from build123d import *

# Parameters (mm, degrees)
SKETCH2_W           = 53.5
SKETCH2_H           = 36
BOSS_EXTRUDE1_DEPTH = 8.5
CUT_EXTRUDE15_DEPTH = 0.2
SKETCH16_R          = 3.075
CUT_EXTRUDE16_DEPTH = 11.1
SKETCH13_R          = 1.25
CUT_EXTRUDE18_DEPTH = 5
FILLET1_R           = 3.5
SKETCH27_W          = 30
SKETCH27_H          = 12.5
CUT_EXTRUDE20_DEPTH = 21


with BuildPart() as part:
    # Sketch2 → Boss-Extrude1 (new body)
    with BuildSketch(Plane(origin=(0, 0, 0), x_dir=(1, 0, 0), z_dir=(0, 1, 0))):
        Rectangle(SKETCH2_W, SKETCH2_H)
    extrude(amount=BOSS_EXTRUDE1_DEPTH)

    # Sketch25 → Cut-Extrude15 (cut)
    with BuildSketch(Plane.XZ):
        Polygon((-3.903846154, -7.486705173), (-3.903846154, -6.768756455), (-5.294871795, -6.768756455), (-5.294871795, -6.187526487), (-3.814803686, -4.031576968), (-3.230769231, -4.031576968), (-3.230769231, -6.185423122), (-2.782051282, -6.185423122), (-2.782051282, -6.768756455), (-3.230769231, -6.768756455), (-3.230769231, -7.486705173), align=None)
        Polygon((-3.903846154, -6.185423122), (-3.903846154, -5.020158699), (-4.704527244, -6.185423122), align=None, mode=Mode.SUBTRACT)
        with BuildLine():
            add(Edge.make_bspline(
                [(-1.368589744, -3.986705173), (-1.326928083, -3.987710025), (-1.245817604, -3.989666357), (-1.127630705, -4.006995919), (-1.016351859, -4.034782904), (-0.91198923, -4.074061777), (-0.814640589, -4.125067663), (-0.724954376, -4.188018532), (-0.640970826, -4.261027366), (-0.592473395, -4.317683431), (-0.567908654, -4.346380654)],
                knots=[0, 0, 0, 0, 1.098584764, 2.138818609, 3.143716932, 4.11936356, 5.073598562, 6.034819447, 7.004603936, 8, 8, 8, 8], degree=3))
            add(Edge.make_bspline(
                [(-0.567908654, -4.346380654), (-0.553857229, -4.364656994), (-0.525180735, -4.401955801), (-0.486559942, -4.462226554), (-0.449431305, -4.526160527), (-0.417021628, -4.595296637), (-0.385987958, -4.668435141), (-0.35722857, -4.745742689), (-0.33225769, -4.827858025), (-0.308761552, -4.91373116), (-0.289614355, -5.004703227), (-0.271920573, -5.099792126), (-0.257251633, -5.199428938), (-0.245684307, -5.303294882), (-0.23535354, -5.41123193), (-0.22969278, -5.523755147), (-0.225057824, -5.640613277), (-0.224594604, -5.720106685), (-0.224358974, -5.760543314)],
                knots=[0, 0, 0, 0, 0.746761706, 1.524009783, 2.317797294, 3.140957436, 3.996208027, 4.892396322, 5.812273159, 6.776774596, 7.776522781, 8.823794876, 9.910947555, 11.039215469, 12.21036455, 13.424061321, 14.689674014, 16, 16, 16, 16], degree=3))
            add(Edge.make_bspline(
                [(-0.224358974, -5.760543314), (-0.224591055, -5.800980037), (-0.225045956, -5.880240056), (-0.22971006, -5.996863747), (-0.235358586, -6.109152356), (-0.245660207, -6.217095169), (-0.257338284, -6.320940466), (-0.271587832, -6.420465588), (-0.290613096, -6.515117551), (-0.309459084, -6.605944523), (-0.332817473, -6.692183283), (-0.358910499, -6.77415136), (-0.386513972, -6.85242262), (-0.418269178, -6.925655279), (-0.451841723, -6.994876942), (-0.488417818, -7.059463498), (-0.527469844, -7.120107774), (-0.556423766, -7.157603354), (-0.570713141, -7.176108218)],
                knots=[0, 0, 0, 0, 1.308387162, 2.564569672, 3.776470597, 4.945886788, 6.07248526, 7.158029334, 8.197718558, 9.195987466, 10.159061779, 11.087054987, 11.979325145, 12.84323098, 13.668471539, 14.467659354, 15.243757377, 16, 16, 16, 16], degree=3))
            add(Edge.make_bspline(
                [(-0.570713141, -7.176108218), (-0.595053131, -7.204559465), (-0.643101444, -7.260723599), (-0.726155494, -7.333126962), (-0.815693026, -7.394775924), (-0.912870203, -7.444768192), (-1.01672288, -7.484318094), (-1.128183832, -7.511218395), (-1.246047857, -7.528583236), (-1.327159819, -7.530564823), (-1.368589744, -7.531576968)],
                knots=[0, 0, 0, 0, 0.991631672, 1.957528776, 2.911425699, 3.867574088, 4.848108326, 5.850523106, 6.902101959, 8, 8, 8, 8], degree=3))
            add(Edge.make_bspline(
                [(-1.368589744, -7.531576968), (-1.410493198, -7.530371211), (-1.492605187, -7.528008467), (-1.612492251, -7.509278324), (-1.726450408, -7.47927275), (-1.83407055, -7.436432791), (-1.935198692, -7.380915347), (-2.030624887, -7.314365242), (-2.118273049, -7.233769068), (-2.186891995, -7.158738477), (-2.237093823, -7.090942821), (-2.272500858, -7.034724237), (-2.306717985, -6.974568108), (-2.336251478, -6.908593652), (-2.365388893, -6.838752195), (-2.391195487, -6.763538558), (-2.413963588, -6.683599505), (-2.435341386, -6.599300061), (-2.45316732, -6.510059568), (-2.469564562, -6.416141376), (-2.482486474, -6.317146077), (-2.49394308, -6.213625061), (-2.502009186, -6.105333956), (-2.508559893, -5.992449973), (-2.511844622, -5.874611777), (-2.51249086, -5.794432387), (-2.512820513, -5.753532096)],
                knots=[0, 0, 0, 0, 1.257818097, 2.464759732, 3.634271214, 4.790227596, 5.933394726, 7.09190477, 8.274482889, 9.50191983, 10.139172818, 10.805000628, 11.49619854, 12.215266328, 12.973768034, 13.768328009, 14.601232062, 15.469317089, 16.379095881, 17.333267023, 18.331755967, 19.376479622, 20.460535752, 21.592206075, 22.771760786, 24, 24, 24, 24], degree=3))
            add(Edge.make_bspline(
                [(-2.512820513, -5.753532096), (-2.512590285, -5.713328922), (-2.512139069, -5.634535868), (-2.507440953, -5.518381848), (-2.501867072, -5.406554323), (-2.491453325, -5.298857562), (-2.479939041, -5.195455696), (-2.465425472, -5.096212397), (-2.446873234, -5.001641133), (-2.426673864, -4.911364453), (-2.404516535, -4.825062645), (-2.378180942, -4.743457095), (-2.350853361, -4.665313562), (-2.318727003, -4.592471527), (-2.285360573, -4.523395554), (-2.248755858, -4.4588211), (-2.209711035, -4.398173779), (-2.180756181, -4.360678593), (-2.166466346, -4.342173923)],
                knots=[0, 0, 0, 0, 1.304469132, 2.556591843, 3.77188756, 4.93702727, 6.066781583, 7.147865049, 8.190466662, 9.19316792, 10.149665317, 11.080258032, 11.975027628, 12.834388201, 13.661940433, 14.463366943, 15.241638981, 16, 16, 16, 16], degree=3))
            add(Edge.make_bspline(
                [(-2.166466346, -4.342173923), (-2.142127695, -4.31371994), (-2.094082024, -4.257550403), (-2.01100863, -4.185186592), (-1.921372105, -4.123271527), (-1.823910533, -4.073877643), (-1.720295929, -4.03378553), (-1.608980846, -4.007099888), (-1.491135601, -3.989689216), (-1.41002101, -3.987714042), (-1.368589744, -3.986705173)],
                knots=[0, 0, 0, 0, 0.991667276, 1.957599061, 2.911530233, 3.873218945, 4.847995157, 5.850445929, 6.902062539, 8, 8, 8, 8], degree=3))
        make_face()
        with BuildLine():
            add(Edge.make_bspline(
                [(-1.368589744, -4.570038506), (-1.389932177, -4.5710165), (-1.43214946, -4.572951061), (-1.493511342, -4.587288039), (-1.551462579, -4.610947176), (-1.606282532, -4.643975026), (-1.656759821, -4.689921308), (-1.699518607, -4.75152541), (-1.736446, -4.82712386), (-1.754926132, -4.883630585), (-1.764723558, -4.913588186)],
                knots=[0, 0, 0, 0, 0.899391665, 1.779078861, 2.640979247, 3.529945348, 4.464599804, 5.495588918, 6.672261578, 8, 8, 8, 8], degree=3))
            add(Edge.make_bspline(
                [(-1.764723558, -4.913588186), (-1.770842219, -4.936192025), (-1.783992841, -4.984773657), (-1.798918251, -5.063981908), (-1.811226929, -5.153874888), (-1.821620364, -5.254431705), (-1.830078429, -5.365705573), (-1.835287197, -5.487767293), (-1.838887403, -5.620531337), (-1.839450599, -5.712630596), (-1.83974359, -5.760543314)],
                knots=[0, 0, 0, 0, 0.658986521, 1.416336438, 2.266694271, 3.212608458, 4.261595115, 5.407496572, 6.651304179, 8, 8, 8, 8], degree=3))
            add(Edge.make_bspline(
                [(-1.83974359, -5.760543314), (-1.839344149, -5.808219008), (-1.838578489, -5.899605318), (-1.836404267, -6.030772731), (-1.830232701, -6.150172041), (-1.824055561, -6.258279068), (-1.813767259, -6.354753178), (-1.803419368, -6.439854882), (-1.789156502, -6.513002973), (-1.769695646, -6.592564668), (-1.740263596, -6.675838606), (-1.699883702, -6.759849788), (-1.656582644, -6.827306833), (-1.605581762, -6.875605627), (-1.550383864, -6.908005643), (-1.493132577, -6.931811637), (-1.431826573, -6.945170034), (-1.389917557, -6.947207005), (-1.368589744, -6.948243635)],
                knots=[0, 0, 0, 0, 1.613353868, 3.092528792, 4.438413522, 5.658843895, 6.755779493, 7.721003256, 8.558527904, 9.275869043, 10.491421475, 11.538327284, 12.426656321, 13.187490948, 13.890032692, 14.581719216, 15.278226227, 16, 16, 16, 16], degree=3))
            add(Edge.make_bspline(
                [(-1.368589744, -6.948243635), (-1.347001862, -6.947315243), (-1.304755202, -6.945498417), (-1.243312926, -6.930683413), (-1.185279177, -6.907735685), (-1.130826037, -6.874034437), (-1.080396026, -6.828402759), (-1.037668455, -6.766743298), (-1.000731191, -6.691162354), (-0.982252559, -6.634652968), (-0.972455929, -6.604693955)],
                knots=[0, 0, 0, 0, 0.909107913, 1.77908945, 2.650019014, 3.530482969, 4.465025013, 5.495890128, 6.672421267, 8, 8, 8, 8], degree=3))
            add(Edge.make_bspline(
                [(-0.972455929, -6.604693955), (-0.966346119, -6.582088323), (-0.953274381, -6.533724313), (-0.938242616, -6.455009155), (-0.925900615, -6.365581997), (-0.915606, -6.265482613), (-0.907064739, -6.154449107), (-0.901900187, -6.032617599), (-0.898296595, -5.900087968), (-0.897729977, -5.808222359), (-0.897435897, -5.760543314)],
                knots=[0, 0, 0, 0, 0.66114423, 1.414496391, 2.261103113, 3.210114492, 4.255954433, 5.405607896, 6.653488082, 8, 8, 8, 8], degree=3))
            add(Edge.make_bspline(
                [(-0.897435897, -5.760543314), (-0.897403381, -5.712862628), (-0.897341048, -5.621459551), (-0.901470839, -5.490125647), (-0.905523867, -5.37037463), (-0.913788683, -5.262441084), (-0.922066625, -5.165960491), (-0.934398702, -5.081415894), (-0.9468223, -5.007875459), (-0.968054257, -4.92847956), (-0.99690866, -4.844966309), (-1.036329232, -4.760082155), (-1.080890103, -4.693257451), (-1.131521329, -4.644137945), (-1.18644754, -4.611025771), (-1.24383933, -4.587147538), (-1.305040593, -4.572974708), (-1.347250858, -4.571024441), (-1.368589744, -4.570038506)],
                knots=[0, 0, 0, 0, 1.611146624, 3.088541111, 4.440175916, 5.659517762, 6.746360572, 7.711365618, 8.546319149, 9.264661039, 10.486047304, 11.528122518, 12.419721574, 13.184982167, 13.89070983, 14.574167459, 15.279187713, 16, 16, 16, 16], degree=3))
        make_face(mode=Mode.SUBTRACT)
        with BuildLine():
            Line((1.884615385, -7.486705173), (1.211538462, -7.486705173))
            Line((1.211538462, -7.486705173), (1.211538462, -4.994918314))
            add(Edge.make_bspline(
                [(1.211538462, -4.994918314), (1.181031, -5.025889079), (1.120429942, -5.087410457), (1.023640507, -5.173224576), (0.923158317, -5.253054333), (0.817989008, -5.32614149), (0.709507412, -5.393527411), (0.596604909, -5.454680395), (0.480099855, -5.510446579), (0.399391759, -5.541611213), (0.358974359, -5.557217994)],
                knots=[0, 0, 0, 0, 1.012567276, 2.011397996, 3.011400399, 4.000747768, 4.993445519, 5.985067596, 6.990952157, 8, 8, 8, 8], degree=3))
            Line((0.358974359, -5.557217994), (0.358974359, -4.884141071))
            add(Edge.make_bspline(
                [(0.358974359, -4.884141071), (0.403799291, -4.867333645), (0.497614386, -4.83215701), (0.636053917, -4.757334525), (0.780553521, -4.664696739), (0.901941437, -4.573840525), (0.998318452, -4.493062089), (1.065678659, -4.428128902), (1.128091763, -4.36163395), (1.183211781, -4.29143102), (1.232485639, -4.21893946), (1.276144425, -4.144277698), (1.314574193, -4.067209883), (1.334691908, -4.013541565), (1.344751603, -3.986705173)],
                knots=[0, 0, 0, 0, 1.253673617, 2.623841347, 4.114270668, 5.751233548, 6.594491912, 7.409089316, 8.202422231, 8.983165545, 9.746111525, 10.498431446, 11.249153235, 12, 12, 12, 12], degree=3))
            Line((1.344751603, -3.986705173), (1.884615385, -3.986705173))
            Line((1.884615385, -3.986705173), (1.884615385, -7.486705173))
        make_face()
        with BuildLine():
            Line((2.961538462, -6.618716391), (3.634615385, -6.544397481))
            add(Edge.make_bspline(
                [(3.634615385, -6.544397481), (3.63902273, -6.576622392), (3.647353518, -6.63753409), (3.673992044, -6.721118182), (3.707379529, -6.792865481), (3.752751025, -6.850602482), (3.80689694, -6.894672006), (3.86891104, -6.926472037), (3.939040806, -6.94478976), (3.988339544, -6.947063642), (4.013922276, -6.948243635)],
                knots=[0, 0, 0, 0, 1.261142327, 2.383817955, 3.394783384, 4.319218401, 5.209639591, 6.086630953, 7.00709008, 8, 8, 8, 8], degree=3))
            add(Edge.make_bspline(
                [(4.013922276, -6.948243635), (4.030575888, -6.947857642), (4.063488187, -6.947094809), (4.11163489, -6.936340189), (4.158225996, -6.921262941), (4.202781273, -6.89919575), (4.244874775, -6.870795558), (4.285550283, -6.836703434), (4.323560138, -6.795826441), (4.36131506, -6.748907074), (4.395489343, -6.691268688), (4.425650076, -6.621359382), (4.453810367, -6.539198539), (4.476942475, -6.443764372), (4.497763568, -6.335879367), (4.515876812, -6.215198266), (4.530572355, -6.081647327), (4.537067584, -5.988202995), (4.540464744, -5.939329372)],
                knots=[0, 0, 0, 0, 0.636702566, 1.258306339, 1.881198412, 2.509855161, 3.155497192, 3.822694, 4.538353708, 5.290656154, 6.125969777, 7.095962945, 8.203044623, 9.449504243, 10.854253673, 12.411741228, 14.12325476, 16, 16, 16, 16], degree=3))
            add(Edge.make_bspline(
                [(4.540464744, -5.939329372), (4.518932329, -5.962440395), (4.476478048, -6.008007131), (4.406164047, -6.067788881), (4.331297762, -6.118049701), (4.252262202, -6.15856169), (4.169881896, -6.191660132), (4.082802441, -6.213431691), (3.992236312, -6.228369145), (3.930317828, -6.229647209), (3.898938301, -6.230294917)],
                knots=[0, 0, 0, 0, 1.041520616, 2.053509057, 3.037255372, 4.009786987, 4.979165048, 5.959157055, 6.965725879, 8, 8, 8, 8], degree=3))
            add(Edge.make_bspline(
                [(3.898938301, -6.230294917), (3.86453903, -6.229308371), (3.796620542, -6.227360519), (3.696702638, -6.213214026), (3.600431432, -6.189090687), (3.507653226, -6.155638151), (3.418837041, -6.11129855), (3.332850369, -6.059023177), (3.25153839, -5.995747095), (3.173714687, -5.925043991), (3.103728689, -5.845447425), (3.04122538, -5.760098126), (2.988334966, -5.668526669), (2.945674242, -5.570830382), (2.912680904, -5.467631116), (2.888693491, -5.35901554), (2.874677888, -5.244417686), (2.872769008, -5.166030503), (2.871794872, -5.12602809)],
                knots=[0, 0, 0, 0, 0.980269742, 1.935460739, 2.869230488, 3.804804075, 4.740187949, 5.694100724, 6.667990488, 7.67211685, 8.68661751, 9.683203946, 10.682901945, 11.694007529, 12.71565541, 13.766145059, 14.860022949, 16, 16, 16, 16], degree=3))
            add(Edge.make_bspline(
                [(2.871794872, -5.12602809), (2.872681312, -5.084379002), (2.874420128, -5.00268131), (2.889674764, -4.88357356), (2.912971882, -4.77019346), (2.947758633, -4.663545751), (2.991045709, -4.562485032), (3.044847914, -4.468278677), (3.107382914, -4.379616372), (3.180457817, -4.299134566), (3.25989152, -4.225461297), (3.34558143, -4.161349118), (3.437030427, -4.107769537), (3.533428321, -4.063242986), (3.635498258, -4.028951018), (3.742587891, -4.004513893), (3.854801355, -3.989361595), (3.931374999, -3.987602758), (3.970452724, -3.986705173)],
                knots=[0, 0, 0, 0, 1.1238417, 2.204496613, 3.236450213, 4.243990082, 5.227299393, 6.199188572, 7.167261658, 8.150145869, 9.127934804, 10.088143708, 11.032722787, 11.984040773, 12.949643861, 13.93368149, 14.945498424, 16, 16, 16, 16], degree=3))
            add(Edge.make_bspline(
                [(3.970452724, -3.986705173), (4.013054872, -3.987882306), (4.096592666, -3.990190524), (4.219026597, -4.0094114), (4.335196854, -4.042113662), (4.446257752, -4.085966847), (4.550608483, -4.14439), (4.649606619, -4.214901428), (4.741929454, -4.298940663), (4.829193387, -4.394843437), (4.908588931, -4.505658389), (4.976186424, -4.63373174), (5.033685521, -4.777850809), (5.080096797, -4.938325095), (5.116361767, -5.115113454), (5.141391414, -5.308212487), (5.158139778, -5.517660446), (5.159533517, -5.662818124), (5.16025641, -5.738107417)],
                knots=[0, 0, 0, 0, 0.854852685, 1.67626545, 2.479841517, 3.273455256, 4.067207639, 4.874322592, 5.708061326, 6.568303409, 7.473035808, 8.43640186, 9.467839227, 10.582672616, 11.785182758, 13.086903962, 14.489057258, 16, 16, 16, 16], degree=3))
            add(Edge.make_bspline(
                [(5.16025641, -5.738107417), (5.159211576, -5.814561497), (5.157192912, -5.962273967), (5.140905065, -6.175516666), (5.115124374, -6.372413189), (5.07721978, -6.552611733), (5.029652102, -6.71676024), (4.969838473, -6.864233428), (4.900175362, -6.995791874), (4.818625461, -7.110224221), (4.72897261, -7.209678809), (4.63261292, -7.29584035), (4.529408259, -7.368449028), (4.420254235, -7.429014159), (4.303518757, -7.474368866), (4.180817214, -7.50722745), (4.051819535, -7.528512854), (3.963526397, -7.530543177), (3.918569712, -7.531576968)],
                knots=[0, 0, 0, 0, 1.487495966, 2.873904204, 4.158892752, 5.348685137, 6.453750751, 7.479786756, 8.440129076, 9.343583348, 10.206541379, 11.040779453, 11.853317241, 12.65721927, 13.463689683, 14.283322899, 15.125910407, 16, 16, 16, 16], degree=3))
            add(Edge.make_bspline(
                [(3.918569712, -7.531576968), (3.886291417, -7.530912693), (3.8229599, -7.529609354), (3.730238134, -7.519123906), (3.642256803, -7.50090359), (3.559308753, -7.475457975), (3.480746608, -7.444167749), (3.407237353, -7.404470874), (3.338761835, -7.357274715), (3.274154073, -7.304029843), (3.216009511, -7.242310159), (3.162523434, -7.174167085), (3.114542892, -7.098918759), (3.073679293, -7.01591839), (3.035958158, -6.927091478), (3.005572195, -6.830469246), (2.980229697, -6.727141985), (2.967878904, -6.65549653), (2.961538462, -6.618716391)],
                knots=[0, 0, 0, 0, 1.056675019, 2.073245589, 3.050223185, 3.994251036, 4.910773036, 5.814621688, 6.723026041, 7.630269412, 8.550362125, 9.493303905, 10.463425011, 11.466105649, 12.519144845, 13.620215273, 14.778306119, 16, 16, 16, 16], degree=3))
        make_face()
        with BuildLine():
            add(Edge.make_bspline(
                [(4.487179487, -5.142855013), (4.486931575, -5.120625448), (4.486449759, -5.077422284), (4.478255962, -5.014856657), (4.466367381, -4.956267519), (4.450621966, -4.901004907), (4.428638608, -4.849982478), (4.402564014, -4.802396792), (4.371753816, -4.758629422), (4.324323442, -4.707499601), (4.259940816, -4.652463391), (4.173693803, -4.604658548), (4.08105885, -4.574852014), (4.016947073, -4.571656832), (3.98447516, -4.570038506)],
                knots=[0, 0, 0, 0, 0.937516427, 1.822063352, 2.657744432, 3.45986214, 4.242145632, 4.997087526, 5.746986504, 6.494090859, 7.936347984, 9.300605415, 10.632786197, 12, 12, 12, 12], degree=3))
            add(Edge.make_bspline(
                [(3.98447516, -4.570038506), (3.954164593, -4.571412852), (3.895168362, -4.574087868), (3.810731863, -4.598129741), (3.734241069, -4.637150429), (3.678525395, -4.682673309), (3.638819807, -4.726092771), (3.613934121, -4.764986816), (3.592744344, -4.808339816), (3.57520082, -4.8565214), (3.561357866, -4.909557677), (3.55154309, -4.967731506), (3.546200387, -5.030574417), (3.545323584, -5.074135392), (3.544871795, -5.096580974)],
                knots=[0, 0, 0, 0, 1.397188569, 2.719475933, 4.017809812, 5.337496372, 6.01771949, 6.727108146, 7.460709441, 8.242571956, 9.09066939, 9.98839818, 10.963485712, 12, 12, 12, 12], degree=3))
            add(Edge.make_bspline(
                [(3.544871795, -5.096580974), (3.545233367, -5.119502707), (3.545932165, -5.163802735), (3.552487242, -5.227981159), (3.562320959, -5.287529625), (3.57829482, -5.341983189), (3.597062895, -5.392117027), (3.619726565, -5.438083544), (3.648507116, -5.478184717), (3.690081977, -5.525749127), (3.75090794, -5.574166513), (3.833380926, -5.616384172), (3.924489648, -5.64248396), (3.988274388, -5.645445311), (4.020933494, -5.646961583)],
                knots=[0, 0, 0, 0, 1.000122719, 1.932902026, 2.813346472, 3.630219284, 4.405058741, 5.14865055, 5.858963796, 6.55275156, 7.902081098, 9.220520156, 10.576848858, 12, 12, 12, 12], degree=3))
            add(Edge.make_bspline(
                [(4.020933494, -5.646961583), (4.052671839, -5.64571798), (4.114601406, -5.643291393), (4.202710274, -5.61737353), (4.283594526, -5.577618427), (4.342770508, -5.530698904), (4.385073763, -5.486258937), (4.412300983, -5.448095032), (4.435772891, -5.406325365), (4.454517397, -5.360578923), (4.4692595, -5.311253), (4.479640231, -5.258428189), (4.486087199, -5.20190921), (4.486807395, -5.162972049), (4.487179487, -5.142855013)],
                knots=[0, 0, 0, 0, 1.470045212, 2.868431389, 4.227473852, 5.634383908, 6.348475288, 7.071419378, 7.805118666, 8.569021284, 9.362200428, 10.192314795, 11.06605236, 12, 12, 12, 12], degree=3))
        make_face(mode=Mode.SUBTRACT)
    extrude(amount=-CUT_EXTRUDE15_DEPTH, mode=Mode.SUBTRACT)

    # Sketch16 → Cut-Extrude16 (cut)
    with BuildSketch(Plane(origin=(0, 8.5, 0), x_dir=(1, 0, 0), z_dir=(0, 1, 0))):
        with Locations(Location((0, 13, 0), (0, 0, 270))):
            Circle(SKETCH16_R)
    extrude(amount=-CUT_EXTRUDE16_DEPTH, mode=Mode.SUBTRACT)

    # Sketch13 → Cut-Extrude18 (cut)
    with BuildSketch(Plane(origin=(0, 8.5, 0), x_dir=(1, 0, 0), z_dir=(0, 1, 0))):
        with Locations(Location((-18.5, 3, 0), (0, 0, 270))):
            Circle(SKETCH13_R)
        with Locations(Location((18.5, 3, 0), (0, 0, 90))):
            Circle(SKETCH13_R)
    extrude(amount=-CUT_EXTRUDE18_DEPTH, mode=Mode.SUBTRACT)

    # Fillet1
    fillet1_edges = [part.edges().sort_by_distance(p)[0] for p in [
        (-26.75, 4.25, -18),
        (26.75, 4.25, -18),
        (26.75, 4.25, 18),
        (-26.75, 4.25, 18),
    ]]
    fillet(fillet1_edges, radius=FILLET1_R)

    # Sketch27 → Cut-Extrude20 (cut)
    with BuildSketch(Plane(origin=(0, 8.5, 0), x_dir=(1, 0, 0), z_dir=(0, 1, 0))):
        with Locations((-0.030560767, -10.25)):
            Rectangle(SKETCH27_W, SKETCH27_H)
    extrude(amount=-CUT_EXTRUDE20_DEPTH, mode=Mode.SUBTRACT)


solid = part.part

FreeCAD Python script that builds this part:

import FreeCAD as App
import Part
import Sketcher
Q = App.Units.Quantity


def edges_at(feature, points):
    """Names of the edges that pass closest to the given points."""
    edges = feature.Shape.Edges
    near = lambda p: min(range(len(edges)), key=lambda i: edges[i].distToShape(Part.Vertex(*p))[0])
    return sorted({f"Edge{near(p) + 1}" for p in points})


def add_polygon(sketch, points):
    """Adds a closed chain of lines whose ends are joined by coincident constraints."""
    first, n = sketch.GeometryCount, len(points)
    for a, b in zip(points, points[1:] + points[:1]):
        sketch.addGeometry(Part.LineSegment(App.Vector(*a, 0), App.Vector(*b, 0)), False)
    for i in range(n):
        sketch.addConstraint(Sketcher.Constraint("Coincident", first + i, 2, first + (i + 1) % n, 1))

doc = App.newDocument("Part")
body = doc.addObject("PartDesign::Body", "Body")

sketch1 = body.newObject("Sketcher::SketchObject", "Sketch")
sketch1.AttachmentSupport = (doc.getObject("XZ_Plane"), [""])
sketch1.MapMode = "FlatFace"
add_polygon(sketch1, [(-27, -18), (-27, 18), (27, 18), (27, -18)])
sketch1.addConstraint([
    Sketcher.Constraint("Vertical", 0),
    Sketcher.Constraint("Horizontal", 1),
    Sketcher.Constraint("Vertical", 2),
    Sketcher.Constraint("Horizontal", 3),
    Sketcher.Constraint("Symmetric", 0, 2, 2, 2, -1, 1),
    Sketcher.Constraint("DistanceY", 0, 1, 0, 2, Q("36 mm")),
    Sketcher.Constraint("DistanceX", 1, 1, 1, 2, Q("53.5 mm")),
])
pad1 = body.newObject("PartDesign::Pad", "Pad")
pad1.Profile = sketch1
pad1.Length = 8.5
pad1.Reversed = True

sketch2 = body.newObject("Sketcher::SketchObject", "Sketch001")
sketch2.AttachmentSupport = (doc.getObject("XZ_Plane"), [""])
sketch2.MapMode = "FlatFace"
add_polygon(sketch2, [(-3.903846, -6.768756), (-3.903846, -7.486705), (-3.230769, -7.486705), (-3.230769, -6.768756), (-2.782051, -6.768756), (-2.782051, -6.185423), (-3.230769, -6.185423), (-3.230769, -4.031577), (-3.814804, -4.031577), (-5.294872, -6.187526), (-5.294872, -6.768756)])
add_polygon(sketch2, [(-3.903846, -6.185423), (-4.704527, -6.185423), (-3.903846, -5.020159)])
sketch2.addGeometry(Part.BSplineCurve([App.Vector(-1.36859, -3.986705, 0), App.Vector(-1.326928, -3.98771, 0), App.Vector(-1.245818, -3.989666, 0), App.Vector(-1.127631, -4.006996, 0), App.Vector(-1.016352, -4.034783, 0), App.Vector(-0.911989, -4.074062, 0), App.Vector(-0.814641, -4.125068, 0), App.Vector(-0.724954, -4.188019, 0), App.Vector(-0.640971, -4.261027, 0), App.Vector(-0.592473, -4.317683, 0), App.Vector(-0.567909, -4.346381, 0)], [4, 1, 1, 1, 1, 1, 1, 1, 4], [0, 1.098584764, 2.138818609, 3.143716932, 4.11936356, 5.073598562, 6.034819447, 7.004603936, 8], False, 3, [1, 1, 1, 1, 1, 1, 1, 1, 1, 1, 1], False), False)
sketch2.addGeometry(Part.BSplineCurve([App.Vector(-2.166466, -4.342174, 0), App.Vector(-2.142128, -4.31372, 0), App.Vector(-2.094082, -4.25755, 0), App.Vector(-2.011009, -4.185187, 0), App.Vector(-1.921372, -4.123272, 0), App.Vector(-1.823911, -4.073878, 0), App.Vector(-1.720296, -4.033786, 0), App.Vector(-1.608981, -4.0071, 0), App.Vector(-1.491136, -3.989689, 0), App.Vector(-1.410021, -3.987714, 0), App.Vector(-1.36859, -3.986705, 0)], [4, 1, 1, 1, 1, 1, 1, 1, 4], [0, 0.991667276, 1.957599061, 2.911530233, 3.873218945, 4.847995157, 5.850445929, 6.902062539, 8], False, 3, [1, 1, 1, 1, 1, 1, 1, 1, 1, 1, 1], False), False)
sketch2.addGeometry(Part.BSplineCurve([App.Vector(-2.512821, -5.753532, 0), App.Vector(-2.51259, -5.713329, 0), App.Vector(-2.512139, -5.634536, 0), App.Vector(-2.507441, -5.518382, 0), App.Vector(-2.501867, -5.406554, 0), App.Vector(-2.491453, -5.298858, 0), App.Vector(-2.479939, -5.195456, 0), App.Vector(-2.465425, -5.096212, 0), App.Vector(-2.446873, -5.001641, 0), App.Vector(-2.426674, -4.911364, 0), App.Vector(-2.404517, -4.825063, 0), App.Vector(-2.378181, -4.743457, 0), App.Vector(-2.350853, -4.665314, 0), App.Vector(-2.318727, -4.592472, 0), App.Vector(-2.285361, -4.523396, 0), App.Vector(-2.248756, -4.458821, 0), App.Vector(-2.209711, -4.398174, 0), App.Vector(-2.180756, -4.360679, 0), App.Vector(-2.166466, -4.342174, 0)], [4, 1, 1, 1, 1, 1, 1, 1, 1, 1, 1, 1, 1, 1, 1, 1, 4], [0, 1.304469132, 2.556591843, 3.77188756, 4.93702727, 6.066781583, 7.147865049, 8.190466662, 9.19316792, 10.149665317, 11.080258032, 11.975027628, 12.834388201, 13.661940433, 14.463366943, 15.241638981, 16], False, 3, [1, 1, 1, 1, 1, 1, 1, 1, 1, 1, 1, 1, 1, 1, 1, 1, 1, 1, 1], False), False)
sketch2.addGeometry(Part.BSplineCurve([App.Vector(-1.36859, -7.531577, 0), App.Vector(-1.410493, -7.530371, 0), App.Vector(-1.492605, -7.528008, 0), App.Vector(-1.612492, -7.509278, 0), App.Vector(-1.72645, -7.479273, 0), App.Vector(-1.834071, -7.436433, 0), App.Vector(-1.935199, -7.380915, 0), App.Vector(-2.030625, -7.314365, 0), App.Vector(-2.118273, -7.233769, 0), App.Vector(-2.186892, -7.158738, 0), App.Vector(-2.237094, -7.090943, 0), App.Vector(-2.272501, -7.034724, 0), App.Vector(-2.306718, -6.974568, 0), App.Vector(-2.336251, -6.908594, 0), App.Vector(-2.365389, -6.838752, 0), App.Vector(-2.391195, -6.763539, 0), App.Vector(-2.413964, -6.6836, 0), App.Vector(-2.435341, -6.5993, 0), App.Vector(-2.453167, -6.51006, 0), App.Vector(-2.469565, -6.416141, 0), App.Vector(-2.482486, -6.317146, 0), App.Vector(-2.493943, -6.213625, 0), App.Vector(-2.502009, -6.105334, 0), App.Vector(-2.50856, -5.99245, 0), App.Vector(-2.511845, -5.874612, 0), App.Vector(-2.512491, -5.794432, 0), App.Vector(-2.512821, -5.753532, 0)], [4, 1, 1, 1, 1, 1, 1, 1, 1, 1, 1, 1, 1, 1, 1, 1, 1, 1, 1, 1, 1, 1, 1, 1, 4], [0, 1.257818097, 2.464759732, 3.634271214, 4.790227596, 5.933394726, 7.09190477, 8.274482889, 9.50191983, 10.139172818, 10.805000628, 11.49619854, 12.215266328, 12.973768034, 13.768328009, 14.601232062, 15.469317089, 16.379095881, 17.333267023, 18.331755967, 19.376479622, 20.460535752, 21.592206075, 22.771760786, 24], False, 3, [1, 1, 1, 1, 1, 1, 1, 1, 1, 1, 1, 1, 1, 1, 1, 1, 1, 1, 1, 1, 1, 1, 1, 1, 1, 1, 1], False), False)
sketch2.addGeometry(Part.BSplineCurve([App.Vector(-0.570713, -7.176108, 0), App.Vector(-0.595053, -7.204559, 0), App.Vector(-0.643101, -7.260724, 0), App.Vector(-0.726155, -7.333127, 0), App.Vector(-0.815693, -7.394776, 0), App.Vector(-0.91287, -7.444768, 0), App.Vector(-1.016723, -7.484318, 0), App.Vector(-1.128184, -7.511218, 0), App.Vector(-1.246048, -7.528583, 0), App.Vector(-1.32716, -7.530565, 0), App.Vector(-1.36859, -7.531577, 0)], [4, 1, 1, 1, 1, 1, 1, 1, 4], [0, 0.991631672, 1.957528776, 2.911425699, 3.867574088, 4.848108326, 5.850523106, 6.902101959, 8], False, 3, [1, 1, 1, 1, 1, 1, 1, 1, 1, 1, 1], False), False)
sketch2.addGeometry(Part.BSplineCurve([App.Vector(-0.224359, -5.760543, 0), App.Vector(-0.224591, -5.80098, 0), App.Vector(-0.225046, -5.88024, 0), App.Vector(-0.22971, -5.996864, 0), App.Vector(-0.235359, -6.109152, 0), App.Vector(-0.24566, -6.217095, 0), App.Vector(-0.257338, -6.32094, 0), App.Vector(-0.271588, -6.420466, 0), App.Vector(-0.290613, -6.515118, 0), App.Vector(-0.309459, -6.605945, 0), App.Vector(-0.332817, -6.692183, 0), App.Vector(-0.35891, -6.774151, 0), App.Vector(-0.386514, -6.852423, 0), App.Vector(-0.418269, -6.925655, 0), App.Vector(-0.451842, -6.994877, 0), App.Vector(-0.488418, -7.059463, 0), App.Vector(-0.52747, -7.120108, 0), App.Vector(-0.556424, -7.157603, 0), App.Vector(-0.570713, -7.176108, 0)], [4, 1, 1, 1, 1, 1, 1, 1, 1, 1, 1, 1, 1, 1, 1, 1, 4], [0, 1.308387162, 2.564569672, 3.776470597, 4.945886788, 6.07248526, 7.158029334, 8.197718558, 9.195987466, 10.159061779, 11.087054987, 11.979325145, 12.84323098, 13.668471539, 14.467659354, 15.243757377, 16], False, 3, [1, 1, 1, 1, 1, 1, 1, 1, 1, 1, 1, 1, 1, 1, 1, 1, 1, 1, 1], False), False)
sketch2.addGeometry(Part.BSplineCurve([App.Vector(-0.567909, -4.346381, 0), App.Vector(-0.553857, -4.364657, 0), App.Vector(-0.525181, -4.401956, 0), App.Vector(-0.48656, -4.462227, 0), App.Vector(-0.449431, -4.526161, 0), App.Vector(-0.417022, -4.595297, 0), App.Vector(-0.385988, -4.668435, 0), App.Vector(-0.357229, -4.745743, 0), App.Vector(-0.332258, -4.827858, 0), App.Vector(-0.308762, -4.913731, 0), App.Vector(-0.289614, -5.004703, 0), App.Vector(-0.271921, -5.099792, 0), App.Vector(-0.257252, -5.199429, 0), App.Vector(-0.245684, -5.303295, 0), App.Vector(-0.235354, -5.411232, 0), App.Vector(-0.229693, -5.523755, 0), App.Vector(-0.225058, -5.640613, 0), App.Vector(-0.224595, -5.720107, 0), App.Vector(-0.224359, -5.760543, 0)], [4, 1, 1, 1, 1, 1, 1, 1, 1, 1, 1, 1, 1, 1, 1, 1, 4], [0, 0.746761706, 1.524009783, 2.317797294, 3.140957436, 3.996208027, 4.892396322, 5.812273159, 6.776774596, 7.776522781, 8.823794876, 9.910947555, 11.039215469, 12.21036455, 13.424061321, 14.689674014, 16], False, 3, [1, 1, 1, 1, 1, 1, 1, 1, 1, 1, 1, 1, 1, 1, 1, 1, 1, 1, 1], False), False)
sketch2.addGeometry(Part.BSplineCurve([App.Vector(-0.897436, -5.760543, 0), App.Vector(-0.897403, -5.712863, 0), App.Vector(-0.897341, -5.62146, 0), App.Vector(-0.901471, -5.490126, 0), App.Vector(-0.905524, -5.370375, 0), App.Vector(-0.913789, -5.262441, 0), App.Vector(-0.922067, -5.16596, 0), App.Vector(-0.934399, -5.081416, 0), App.Vector(-0.946822, -5.007875, 0), App.Vector(-0.968054, -4.92848, 0), App.Vector(-0.996909, -4.844966, 0), App.Vector(-1.036329, -4.760082, 0), App.Vector(-1.08089, -4.693257, 0), App.Vector(-1.131521, -4.644138, 0), App.Vector(-1.186448, -4.611026, 0), App.Vector(-1.243839, -4.587148, 0), App.Vector(-1.305041, -4.572975, 0), App.Vector(-1.347251, -4.571024, 0), App.Vector(-1.36859, -4.570039, 0)], [4, 1, 1, 1, 1, 1, 1, 1, 1, 1, 1, 1, 1, 1, 1, 1, 4], [0, 1.611146624, 3.088541111, 4.440175916, 5.659517762, 6.746360572, 7.711365618, 8.546319149, 9.264661039, 10.486047304, 11.528122518, 12.419721574, 13.184982167, 13.89070983, 14.574167459, 15.279187713, 16], False, 3, [1, 1, 1, 1, 1, 1, 1, 1, 1, 1, 1, 1, 1, 1, 1, 1, 1, 1, 1], False), False)
sketch2.addGeometry(Part.BSplineCurve([App.Vector(-0.972456, -6.604694, 0), App.Vector(-0.966346, -6.582088, 0), App.Vector(-0.953274, -6.533724, 0), App.Vector(-0.938243, -6.455009, 0), App.Vector(-0.925901, -6.365582, 0), App.Vector(-0.915606, -6.265483, 0), App.Vector(-0.907065, -6.154449, 0), App.Vector(-0.9019, -6.032618, 0), App.Vector(-0.898297, -5.900088, 0), App.Vector(-0.89773, -5.808222, 0), App.Vector(-0.897436, -5.760543, 0)], [4, 1, 1, 1, 1, 1, 1, 1, 4], [0, 0.66114423, 1.414496391, 2.261103113, 3.210114492, 4.255954433, 5.405607896, 6.653488082, 8], False, 3, [1, 1, 1, 1, 1, 1, 1, 1, 1, 1, 1], False), False)
sketch2.addGeometry(Part.BSplineCurve([App.Vector(-1.36859, -6.948244, 0), App.Vector(-1.347002, -6.947315, 0), App.Vector(-1.304755, -6.945498, 0), App.Vector(-1.243313, -6.930683, 0), App.Vector(-1.185279, -6.907736, 0), App.Vector(-1.130826, -6.874034, 0), App.Vector(-1.080396, -6.828403, 0), App.Vector(-1.037668, -6.766743, 0), App.Vector(-1.000731, -6.691162, 0), App.Vector(-0.982253, -6.634653, 0), App.Vector(-0.972456, -6.604694, 0)], [4, 1, 1, 1, 1, 1, 1, 1, 4], [0, 0.909107913, 1.77908945, 2.650019014, 3.530482969, 4.465025013, 5.495890128, 6.672421267, 8], False, 3, [1, 1, 1, 1, 1, 1, 1, 1, 1, 1, 1], False), False)
sketch2.addGeometry(Part.BSplineCurve([App.Vector(-1.839744, -5.760543, 0), App.Vector(-1.839344, -5.808219, 0), App.Vector(-1.838578, -5.899605, 0), App.Vector(-1.836404, -6.030773, 0), App.Vector(-1.830233, -6.150172, 0), App.Vector(-1.824056, -6.258279, 0), App.Vector(-1.813767, -6.354753, 0), App.Vector(-1.803419, -6.439855, 0), App.Vector(-1.789157, -6.513003, 0), App.Vector(-1.769696, -6.592565, 0), App.Vector(-1.740264, -6.675839, 0), App.Vector(-1.699884, -6.75985, 0), App.Vector(-1.656583, -6.827307, 0), App.Vector(-1.605582, -6.875606, 0), App.Vector(-1.550384, -6.908006, 0), App.Vector(-1.493133, -6.931812, 0), App.Vector(-1.431827, -6.94517, 0), App.Vector(-1.389918, -6.947207, 0), App.Vector(-1.36859, -6.948244, 0)], [4, 1, 1, 1, 1, 1, 1, 1, 1, 1, 1, 1, 1, 1, 1, 1, 4], [0, 1.613353868, 3.092528792, 4.438413522, 5.658843895, 6.755779493, 7.721003256, 8.558527904, 9.275869043, 10.491421475, 11.538327284, 12.426656321, 13.187490948, 13.890032692, 14.581719216, 15.278226227, 16], False, 3, [1, 1, 1, 1, 1, 1, 1, 1, 1, 1, 1, 1, 1, 1, 1, 1, 1, 1, 1], False), False)
sketch2.addGeometry(Part.BSplineCurve([App.Vector(-1.764724, -4.913588, 0), App.Vector(-1.770842, -4.936192, 0), App.Vector(-1.783993, -4.984774, 0), App.Vector(-1.798918, -5.063982, 0), App.Vector(-1.811227, -5.153875, 0), App.Vector(-1.82162, -5.254432, 0), App.Vector(-1.830078, -5.365706, 0), App.Vector(-1.835287, -5.487767, 0), App.Vector(-1.838887, -5.620531, 0), App.Vector(-1.839451, -5.712631, 0), App.Vector(-1.839744, -5.760543, 0)], [4, 1, 1, 1, 1, 1, 1, 1, 4], [0, 0.658986521, 1.416336438, 2.266694271, 3.212608458, 4.261595115, 5.407496572, 6.651304179, 8], False, 3, [1, 1, 1, 1, 1, 1, 1, 1, 1, 1, 1], False), False)
sketch2.addGeometry(Part.BSplineCurve([App.Vector(-1.36859, -4.570039, 0), App.Vector(-1.389932, -4.571016, 0), App.Vector(-1.432149, -4.572951, 0), App.Vector(-1.493511, -4.587288, 0), App.Vector(-1.551463, -4.610947, 0), App.Vector(-1.606283, -4.643975, 0), App.Vector(-1.65676, -4.689921, 0), App.Vector(-1.699519, -4.751525, 0), App.Vector(-1.736446, -4.827124, 0), App.Vector(-1.754926, -4.883631, 0), App.Vector(-1.764724, -4.913588, 0)], [4, 1, 1, 1, 1, 1, 1, 1, 4], [0, 0.899391665, 1.779078861, 2.640979247, 3.529945348, 4.464599804, 5.495588918, 6.672261578, 8], False, 3, [1, 1, 1, 1, 1, 1, 1, 1, 1, 1, 1], False), False)
sketch2.addGeometry(Part.LineSegment(App.Vector(1.211538, -7.486705, 0), App.Vector(1.884615, -7.486705, 0)), False)
sketch2.addGeometry(Part.LineSegment(App.Vector(1.884615, -7.486705, 0), App.Vector(1.884615, -3.986705, 0)), False)
sketch2.addGeometry(Part.LineSegment(App.Vector(1.884615, -3.986705, 0), App.Vector(1.344752, -3.986705, 0)), False)
sketch2.addGeometry(Part.BSplineCurve([App.Vector(0.358974, -4.884141, 0), App.Vector(0.403799, -4.867334, 0), App.Vector(0.497614, -4.832157, 0), App.Vector(0.636054, -4.757335, 0), App.Vector(0.780554, -4.664697, 0), App.Vector(0.901941, -4.573841, 0), App.Vector(0.998318, -4.493062, 0), App.Vector(1.065679, -4.428129, 0), App.Vector(1.128092, -4.361634, 0), App.Vector(1.183212, -4.291431, 0), App.Vector(1.232486, -4.218939, 0), App.Vector(1.276144, -4.144278, 0), App.Vector(1.314574, -4.06721, 0), App.Vector(1.334692, -4.013542, 0), App.Vector(1.344752, -3.986705, 0)], [4, 1, 1, 1, 1, 1, 1, 1, 1, 1, 1, 1, 4], [0, 1.253673617, 2.623841347, 4.114270668, 5.751233548, 6.594491912, 7.409089316, 8.202422231, 8.983165545, 9.746111525, 10.498431446, 11.249153235, 12], False, 3, [1, 1, 1, 1, 1, 1, 1, 1, 1, 1, 1, 1, 1, 1, 1], False), False)
sketch2.addGeometry(Part.LineSegment(App.Vector(0.358974, -4.884141, 0), App.Vector(0.358974, -5.557218, 0)), False)
sketch2.addGeometry(Part.BSplineCurve([App.Vector(1.211538, -4.994918, 0), App.Vector(1.181031, -5.025889, 0), App.Vector(1.12043, -5.08741, 0), App.Vector(1.023641, -5.173225, 0), App.Vector(0.923158, -5.253054, 0), App.Vector(0.817989, -5.326141, 0), App.Vector(0.709507, -5.393527, 0), App.Vector(0.596605, -5.45468, 0), App.Vector(0.4801, -5.510447, 0), App.Vector(0.399392, -5.541611, 0), App.Vector(0.358974, -5.557218, 0)], [4, 1, 1, 1, 1, 1, 1, 1, 4], [0, 1.012567276, 2.011397996, 3.011400399, 4.000747768, 4.993445519, 5.985067596, 6.990952157, 8], False, 3, [1, 1, 1, 1, 1, 1, 1, 1, 1, 1, 1], False), False)
sketch2.addGeometry(Part.LineSegment(App.Vector(1.211538, -4.994918, 0), App.Vector(1.211538, -7.486705, 0)), False)
sketch2.addGeometry(Part.LineSegment(App.Vector(3.634615, -6.544397, 0), App.Vector(2.961538, -6.618716, 0)), False)
sketch2.addGeometry(Part.BSplineCurve([App.Vector(3.91857, -7.531577, 0), App.Vector(3.886291, -7.530913, 0), App.Vector(3.82296, -7.529609, 0), App.Vector(3.730238, -7.519124, 0), App.Vector(3.642257, -7.500904, 0), App.Vector(3.559309, -7.475458, 0), App.Vector(3.480747, -7.444168, 0), App.Vector(3.407237, -7.404471, 0), App.Vector(3.338762, -7.357275, 0), App.Vector(3.274154, -7.30403, 0), App.Vector(3.21601, -7.24231, 0), App.Vector(3.162523, -7.174167, 0), App.Vector(3.114543, -7.098919, 0), App.Vector(3.073679, -7.015918, 0), App.Vector(3.035958, -6.927091, 0), App.Vector(3.005572, -6.830469, 0), App.Vector(2.98023, -6.727142, 0), App.Vector(2.967879, -6.655497, 0), App.Vector(2.961538, -6.618716, 0)], [4, 1, 1, 1, 1, 1, 1, 1, 1, 1, 1, 1, 1, 1, 1, 1, 4], [0, 1.056675019, 2.073245589, 3.050223185, 3.994251036, 4.910773036, 5.814621688, 6.723026041, 7.630269412, 8.550362125, 9.493303905, 10.463425011, 11.466105649, 12.519144845, 13.620215273, 14.778306119, 16], False, 3, [1, 1, 1, 1, 1, 1, 1, 1, 1, 1, 1, 1, 1, 1, 1, 1, 1, 1, 1], False), False)
sketch2.addGeometry(Part.BSplineCurve([App.Vector(5.160256, -5.738107, 0), App.Vector(5.159212, -5.814561, 0), App.Vector(5.157193, -5.962274, 0), App.Vector(5.140905, -6.175517, 0), App.Vector(5.115124, -6.372413, 0), App.Vector(5.07722, -6.552612, 0), App.Vector(5.029652, -6.71676, 0), App.Vector(4.969838, -6.864233, 0), App.Vector(4.900175, -6.995792, 0), App.Vector(4.818625, -7.110224, 0), App.Vector(4.728973, -7.209679, 0), App.Vector(4.632613, -7.29584, 0), App.Vector(4.529408, -7.368449, 0), App.Vector(4.420254, -7.429014, 0), App.Vector(4.303519, -7.474369, 0), App.Vector(4.180817, -7.507227, 0), App.Vector(4.05182, -7.528513, 0), App.Vector(3.963526, -7.530543, 0), App.Vector(3.91857, -7.531577, 0)], [4, 1, 1, 1, 1, 1, 1, 1, 1, 1, 1, 1, 1, 1, 1, 1, 4], [0, 1.487495966, 2.873904204, 4.158892752, 5.348685137, 6.453750751, 7.479786756, 8.440129076, 9.343583348, 10.206541379, 11.040779453, 11.853317241, 12.65721927, 13.463689683, 14.283322899, 15.125910407, 16], False, 3, [1, 1, 1, 1, 1, 1, 1, 1, 1, 1, 1, 1, 1, 1, 1, 1, 1, 1, 1], False), False)
sketch2.addGeometry(Part.BSplineCurve([App.Vector(3.970453, -3.986705, 0), App.Vector(4.013055, -3.987882, 0), App.Vector(4.096593, -3.990191, 0), App.Vector(4.219027, -4.009411, 0), App.Vector(4.335197, -4.042114, 0), App.Vector(4.446258, -4.085967, 0), App.Vector(4.550608, -4.14439, 0), App.Vector(4.649607, -4.214901, 0), App.Vector(4.741929, -4.298941, 0), App.Vector(4.829193, -4.394843, 0), App.Vector(4.908589, -4.505658, 0), App.Vector(4.976186, -4.633732, 0), App.Vector(5.033686, -4.777851, 0), App.Vector(5.080097, -4.938325, 0), App.Vector(5.116362, -5.115113, 0), App.Vector(5.141391, -5.308212, 0), App.Vector(5.15814, -5.51766, 0), App.Vector(5.159534, -5.662818, 0), App.Vector(5.160256, -5.738107, 0)], [4, 1, 1, 1, 1, 1, 1, 1, 1, 1, 1, 1, 1, 1, 1, 1, 4], [0, 0.854852685, 1.67626545, 2.479841517, 3.273455256, 4.067207639, 4.874322592, 5.708061326, 6.568303409, 7.473035808, 8.43640186, 9.467839227, 10.582672616, 11.785182758, 13.086903962, 14.489057258, 16], False, 3, [1, 1, 1, 1, 1, 1, 1, 1, 1, 1, 1, 1, 1, 1, 1, 1, 1, 1, 1], False), False)
sketch2.addGeometry(Part.BSplineCurve([App.Vector(2.871795, -5.126028, 0), App.Vector(2.872681, -5.084379, 0), App.Vector(2.87442, -5.002681, 0), App.Vector(2.889675, -4.883574, 0), App.Vector(2.912972, -4.770193, 0), App.Vector(2.947759, -4.663546, 0), App.Vector(2.991046, -4.562485, 0), App.Vector(3.044848, -4.468279, 0), App.Vector(3.107383, -4.379616, 0), App.Vector(3.180458, -4.299135, 0), App.Vector(3.259892, -4.225461, 0), App.Vector(3.345581, -4.161349, 0), App.Vector(3.43703, -4.10777, 0), App.Vector(3.533428, -4.063243, 0), App.Vector(3.635498, -4.028951, 0), App.Vector(3.742588, -4.004514, 0), App.Vector(3.854801, -3.989362, 0), App.Vector(3.931375, -3.987603, 0), App.Vector(3.970453, -3.986705, 0)], [4, 1, 1, 1, 1, 1, 1, 1, 1, 1, 1, 1, 1, 1, 1, 1, 4], [0, 1.1238417, 2.204496613, 3.236450213, 4.243990082, 5.227299393, 6.199188572, 7.167261658, 8.150145869, 9.127934804, 10.088143708, 11.032722787, 11.984040773, 12.949643861, 13.93368149, 14.945498424, 16], False, 3, [1, 1, 1, 1, 1, 1, 1, 1, 1, 1, 1, 1, 1, 1, 1, 1, 1, 1, 1], False), False)
sketch2.addGeometry(Part.BSplineCurve([App.Vector(3.898938, -6.230295, 0), App.Vector(3.864539, -6.229308, 0), App.Vector(3.796621, -6.227361, 0), App.Vector(3.696703, -6.213214, 0), App.Vector(3.600431, -6.189091, 0), App.Vector(3.507653, -6.155638, 0), App.Vector(3.418837, -6.111299, 0), App.Vector(3.33285, -6.059023, 0), App.Vector(3.251538, -5.995747, 0), App.Vector(3.173715, -5.925044, 0), App.Vector(3.103729, -5.845447, 0), App.Vector(3.041225, -5.760098, 0), App.Vector(2.988335, -5.668527, 0), App.Vector(2.945674, -5.57083, 0), App.Vector(2.912681, -5.467631, 0), App.Vector(2.888693, -5.359016, 0), App.Vector(2.874678, -5.244418, 0), App.Vector(2.872769, -5.166031, 0), App.Vector(2.871795, -5.126028, 0)], [4, 1, 1, 1, 1, 1, 1, 1, 1, 1, 1, 1, 1, 1, 1, 1, 4], [0, 0.980269742, 1.935460739, 2.869230488, 3.804804075, 4.740187949, 5.694100724, 6.667990488, 7.67211685, 8.68661751, 9.683203946, 10.682901945, 11.694007529, 12.71565541, 13.766145059, 14.860022949, 16], False, 3, [1, 1, 1, 1, 1, 1, 1, 1, 1, 1, 1, 1, 1, 1, 1, 1, 1, 1, 1], False), False)
sketch2.addGeometry(Part.BSplineCurve([App.Vector(4.540465, -5.939329, 0), App.Vector(4.518932, -5.96244, 0), App.Vector(4.476478, -6.008007, 0), App.Vector(4.406164, -6.067789, 0), App.Vector(4.331298, -6.11805, 0), App.Vector(4.252262, -6.158562, 0), App.Vector(4.169882, -6.19166, 0), App.Vector(4.082802, -6.213432, 0), App.Vector(3.992236, -6.228369, 0), App.Vector(3.930318, -6.229647, 0), App.Vector(3.898938, -6.230295, 0)], [4, 1, 1, 1, 1, 1, 1, 1, 4], [0, 1.041520616, 2.053509057, 3.037255372, 4.009786987, 4.979165048, 5.959157055, 6.965725879, 8], False, 3, [1, 1, 1, 1, 1, 1, 1, 1, 1, 1, 1], False), False)
sketch2.addGeometry(Part.BSplineCurve([App.Vector(4.013922, -6.948244, 0), App.Vector(4.030576, -6.947858, 0), App.Vector(4.063488, -6.947095, 0), App.Vector(4.111635, -6.93634, 0), App.Vector(4.158226, -6.921263, 0), App.Vector(4.202781, -6.899196, 0), App.Vector(4.244875, -6.870796, 0), App.Vector(4.28555, -6.836703, 0), App.Vector(4.32356, -6.795826, 0), App.Vector(4.361315, -6.748907, 0), App.Vector(4.395489, -6.691269, 0), App.Vector(4.42565, -6.621359, 0), App.Vector(4.45381, -6.539199, 0), App.Vector(4.476942, -6.443764, 0), App.Vector(4.497764, -6.335879, 0), App.Vector(4.515877, -6.215198, 0), App.Vector(4.530572, -6.081647, 0), App.Vector(4.537068, -5.988203, 0), App.Vector(4.540465, -5.939329, 0)], [4, 1, 1, 1, 1, 1, 1, 1, 1, 1, 1, 1, 1, 1, 1, 1, 4], [0, 0.636702566, 1.258306339, 1.881198412, 2.509855161, 3.155497192, 3.822694, 4.538353708, 5.290656154, 6.125969777, 7.095962945, 8.203044623, 9.449504243, 10.854253673, 12.411741228, 14.12325476, 16], False, 3, [1, 1, 1, 1, 1, 1, 1, 1, 1, 1, 1, 1, 1, 1, 1, 1, 1, 1, 1], False), False)
sketch2.addGeometry(Part.BSplineCurve([App.Vector(3.634615, -6.544397, 0), App.Vector(3.639023, -6.576622, 0), App.Vector(3.647354, -6.637534, 0), App.Vector(3.673992, -6.721118, 0), App.Vector(3.70738, -6.792865, 0), App.Vector(3.752751, -6.850602, 0), App.Vector(3.806897, -6.894672, 0), App.Vector(3.868911, -6.926472, 0), App.Vector(3.939041, -6.94479, 0), App.Vector(3.98834, -6.947064, 0), App.Vector(4.013922, -6.948244, 0)], [4, 1, 1, 1, 1, 1, 1, 1, 4], [0, 1.261142327, 2.383817955, 3.394783384, 4.319218401, 5.209639591, 6.086630953, 7.00709008, 8], False, 3, [1, 1, 1, 1, 1, 1, 1, 1, 1, 1, 1], False), False)
sketch2.addGeometry(Part.BSplineCurve([App.Vector(4.020933, -5.646962, 0), App.Vector(4.052672, -5.645718, 0), App.Vector(4.114601, -5.643291, 0), App.Vector(4.20271, -5.617374, 0), App.Vector(4.283595, -5.577618, 0), App.Vector(4.342771, -5.530699, 0), App.Vector(4.385074, -5.486259, 0), App.Vector(4.412301, -5.448095, 0), App.Vector(4.435773, -5.406325, 0), App.Vector(4.454517, -5.360579, 0), App.Vector(4.469259, -5.311253, 0), App.Vector(4.47964, -5.258428, 0), App.Vector(4.486087, -5.201909, 0), App.Vector(4.486807, -5.162972, 0), App.Vector(4.487179, -5.142855, 0)], [4, 1, 1, 1, 1, 1, 1, 1, 1, 1, 1, 1, 4], [0, 1.470045212, 2.868431389, 4.227473852, 5.634383908, 6.348475288, 7.071419378, 7.805118666, 8.569021284, 9.362200428, 10.192314795, 11.06605236, 12], False, 3, [1, 1, 1, 1, 1, 1, 1, 1, 1, 1, 1, 1, 1, 1, 1], False), False)
sketch2.addGeometry(Part.BSplineCurve([App.Vector(3.544872, -5.096581, 0), App.Vector(3.545233, -5.119503, 0), App.Vector(3.545932, -5.163803, 0), App.Vector(3.552487, -5.227981, 0), App.Vector(3.562321, -5.28753, 0), App.Vector(3.578295, -5.341983, 0), App.Vector(3.597063, -5.392117, 0), App.Vector(3.619727, -5.438084, 0), App.Vector(3.648507, -5.478185, 0), App.Vector(3.690082, -5.525749, 0), App.Vector(3.750908, -5.574167, 0), App.Vector(3.833381, -5.616384, 0), App.Vector(3.92449, -5.642484, 0), App.Vector(3.988274, -5.645445, 0), App.Vector(4.020933, -5.646962, 0)], [4, 1, 1, 1, 1, 1, 1, 1, 1, 1, 1, 1, 4], [0, 1.000122719, 1.932902026, 2.813346472, 3.630219284, 4.405058741, 5.14865055, 5.858963796, 6.55275156, 7.902081098, 9.220520156, 10.576848858, 12], False, 3, [1, 1, 1, 1, 1, 1, 1, 1, 1, 1, 1, 1, 1, 1, 1], False), False)
sketch2.addGeometry(Part.BSplineCurve([App.Vector(3.984475, -4.570039, 0), App.Vector(3.954165, -4.571413, 0), App.Vector(3.895168, -4.574088, 0), App.Vector(3.810732, -4.59813, 0), App.Vector(3.734241, -4.63715, 0), App.Vector(3.678525, -4.682673, 0), App.Vector(3.63882, -4.726093, 0), App.Vector(3.613934, -4.764987, 0), App.Vector(3.592744, -4.80834, 0), App.Vector(3.575201, -4.856521, 0), App.Vector(3.561358, -4.909558, 0), App.Vector(3.551543, -4.967732, 0), App.Vector(3.5462, -5.030574, 0), App.Vector(3.545324, -5.074135, 0), App.Vector(3.544872, -5.096581, 0)], [4, 1, 1, 1, 1, 1, 1, 1, 1, 1, 1, 1, 4], [0, 1.397188569, 2.719475933, 4.017809812, 5.337496372, 6.01771949, 6.727108146, 7.460709441, 8.242571956, 9.09066939, 9.98839818, 10.963485712, 12], False, 3, [1, 1, 1, 1, 1, 1, 1, 1, 1, 1, 1, 1, 1, 1, 1], False), False)
sketch2.addGeometry(Part.BSplineCurve([App.Vector(4.487179, -5.142855, 0), App.Vector(4.486932, -5.120625, 0), App.Vector(4.48645, -5.077422, 0), App.Vector(4.478256, -5.014857, 0), App.Vector(4.466367, -4.956268, 0), App.Vector(4.450622, -4.901005, 0), App.Vector(4.428639, -4.849982, 0), App.Vector(4.402564, -4.802397, 0), App.Vector(4.371754, -4.758629, 0), App.Vector(4.324323, -4.7075, 0), App.Vector(4.259941, -4.652463, 0), App.Vector(4.173694, -4.604659, 0), App.Vector(4.081059, -4.574852, 0), App.Vector(4.016947, -4.571657, 0), App.Vector(3.984475, -4.570039, 0)], [4, 1, 1, 1, 1, 1, 1, 1, 1, 1, 1, 1, 4], [0, 0.937516427, 1.822063352, 2.657744432, 3.45986214, 4.242145632, 4.997087526, 5.746986504, 6.494090859, 7.936347984, 9.300605415, 10.632786197, 12], False, 3, [1, 1, 1, 1, 1, 1, 1, 1, 1, 1, 1, 1, 1, 1, 1], False), False)
sketch2.addConstraint([
    Sketcher.Constraint("Block", 14),
    Sketcher.Constraint("Block", 15),
    Sketcher.Constraint("Block", 16),
    Sketcher.Constraint("Block", 17),
    Sketcher.Constraint("Block", 18),
    Sketcher.Constraint("Block", 19),
    Sketcher.Constraint("Block", 20),
    Sketcher.Constraint("Block", 21),
    Sketcher.Constraint("Block", 22),
    Sketcher.Constraint("Block", 23),
    Sketcher.Constraint("Block", 24),
    Sketcher.Constraint("Block", 25),
    Sketcher.Constraint("Block", 26),
    Sketcher.Constraint("Block", 30),
    Sketcher.Constraint("Block", 32),
    Sketcher.Constraint("Block", 35),
    Sketcher.Constraint("Block", 36),
    Sketcher.Constraint("Block", 37),
    Sketcher.Constraint("Block", 38),
    Sketcher.Constraint("Block", 39),
    Sketcher.Constraint("Block", 40),
    Sketcher.Constraint("Block", 41),
    Sketcher.Constraint("Block", 42),
    Sketcher.Constraint("Block", 43),
    Sketcher.Constraint("Block", 44),
    Sketcher.Constraint("Block", 45),
    Sketcher.Constraint("Block", 46),
    Sketcher.Constraint("Coincident", 27, 2, 28, 1),
    Sketcher.Constraint("Coincident", 28, 2, 29, 1),
    Sketcher.Constraint("Coincident", 29, 2, 30, 2),
    Sketcher.Constraint("Coincident", 30, 1, 31, 1),
    Sketcher.Constraint("Coincident", 31, 2, 32, 2),
    Sketcher.Constraint("Coincident", 32, 1, 33, 1),
    Sketcher.Constraint("Coincident", 33, 2, 27, 1),
    Sketcher.Constraint("Coincident", 34, 2, 35, 2),
    Sketcher.Constraint("Coincident", 42, 1, 34, 1),
    Sketcher.Constraint("Vertical", 0),
    Sketcher.Constraint("Horizontal", 1),
    Sketcher.Constraint("Vertical", 2),
    Sketcher.Constraint("Horizontal", 3),
    Sketcher.Constraint("Vertical", 4),
    Sketcher.Constraint("Horizontal", 5),
    Sketcher.Constraint("Vertical", 6),
    Sketcher.Constraint("Horizontal", 7),
    Sketcher.Constraint("Vertical", 9),
    Sketcher.Constraint("Horizontal", 10),
    Sketcher.Constraint("Horizontal", 11),
    Sketcher.Constraint("Vertical", 13),
    Sketcher.Constraint("Horizontal", 27),
    Sketcher.Constraint("Vertical", 28),
    Sketcher.Constraint("Horizontal", 29),
    Sketcher.Constraint("Vertical", 33),
    Sketcher.Constraint("DistanceY", 28, 1, 28, 2, Q("3.5 mm")),
    Sketcher.Constraint("DistanceX", 11, 2, 11, 1, Q("0.800681 mm")),
    Sketcher.Constraint("DistanceY", 0, 2, 0, 1, Q("0.717949 mm")),
    Sketcher.Constraint("DistanceY", 2, 1, 2, 2, Q("0.717949 mm")),
    Sketcher.Constraint("DistanceY", 9, 2, 9, 1, Q("0.58123 mm")),
    Sketcher.Constraint("DistanceX", 1, 1, 1, 2, Q("0.673077 mm")),
    Sketcher.Constraint("DistanceX", 3, 1, 3, 2, Q("0.448718 mm")),
    Sketcher.Constraint("DistanceX", 5, 2, 5, 1, Q("0.448718 mm")),
    Sketcher.Constraint("DistanceX", 7, 2, 7, 1, Q("0.584034 mm")),
    Sketcher.Constraint("DistanceX", 10, 1, 10, 2, Q("1.391026 mm")),
    Sketcher.Constraint("DistanceX", 27, 1, 27, 2, Q("0.673077 mm")),
    Sketcher.Constraint("DistanceY", 4, 1, 4, 2, Q("0.583333 mm")),
    Sketcher.Constraint("DistanceY", 6, 1, 6, 2, Q("2.153846 mm")),
    Sketcher.Constraint("DistanceY", 13, 2, 13, 1, Q("1.165264 mm")),
    Sketcher.Constraint("DistanceX", 1, 2, -1, 1, Q("3.230769 mm")),
    Sketcher.Constraint("DistanceY", 12, 2, -1, 1, Q("5.020159 mm")),
    Sketcher.Constraint("DistanceX", 11, 2, 10, 2, Q("0.800681 mm")),
    Sketcher.Constraint("DistanceY", 12, 2, 7, 2, Q("0.988582 mm")),
])
pocket1 = body.newObject("PartDesign::Pocket", "Pocket")
pocket1.Profile = sketch2
pocket1.Length = 0.2

sketch3 = body.newObject("Sketcher::SketchObject", "Sketch002")
sketch3.AttachmentSupport = (doc.getObject("XZ_Plane"), [""])
sketch3.MapMode = "FlatFace"
sketch3.AttachmentOffset = App.Placement(App.Vector(0, 0, -8.5), App.Rotation())
sketch3.addGeometry(Part.Circle(App.Vector(0, -13, 0), App.Vector(0, 0, 1), 3.1), False)
sketch3.addConstraint([
    Sketcher.Constraint("PointOnObject", 0, 3, -2),
    Sketcher.Constraint("Diameter", 0, Q("6.15 mm")),
    Sketcher.Constraint("DistanceY", 0, 3, -1, 1, Q("13 mm")),
])
pocket2 = body.newObject("PartDesign::Pocket", "Pocket001")
pocket2.Profile = sketch3
pocket2.Length = 11.1
pocket2.Reversed = True

sketch4 = body.newObject("Sketcher::SketchObject", "Sketch003")
sketch4.AttachmentSupport = (doc.getObject("XZ_Plane"), [""])
sketch4.MapMode = "FlatFace"
sketch4.AttachmentOffset = App.Placement(App.Vector(0, 0, -8.5), App.Rotation())
sketch4.addGeometry([
    Part.Circle(App.Vector(-18.5, -3, 0), App.Vector(0, 0, 1), 1.2),
    Part.Circle(App.Vector(18.5, -3, 0), App.Vector(0, 0, 1), 1.2),
], False)
sketch4.addConstraint([
    Sketcher.Constraint("Equal", 0, 1),
    Sketcher.Constraint("Symmetric", 0, 3, 1, 3, -2),
    Sketcher.Constraint("Diameter", 0, Q("2.5 mm")),
    Sketcher.Constraint("DistanceY", 0, 3, -1, 1, Q("3 mm")),
    Sketcher.Constraint("DistanceX", 0, 3, 1, 3, Q("37 mm")),
])
pocket3 = body.newObject("PartDesign::Pocket", "Pocket002")
pocket3.Profile = sketch4
pocket3.Length = 5
pocket3.Reversed = True
doc.recompute()

fillet = body.newObject("PartDesign::Fillet", "Fillet")
fillet.Base = (pocket3, edges_at(pocket3, [
    (-26.75, 4.25, -18),
    (26.75, 4.25, -18),
    (26.75, 4.25, 18),
    (-26.75, 4.25, 18),
]))
fillet.Radius = 3.5

sketch5 = body.newObject("Sketcher::SketchObject", "Sketch004")
sketch5.AttachmentSupport = (doc.getObject("XZ_Plane"), [""])
sketch5.MapMode = "FlatFace"
sketch5.AttachmentOffset = App.Placement(App.Vector(0, 0, -8.5), App.Rotation())
add_polygon(sketch5, [(-15, 4), (-15, 16), (15, 16), (15, 4)])
sketch5.addConstraint([
    Sketcher.Constraint("Vertical", 0),
    Sketcher.Constraint("Horizontal", 1),
    Sketcher.Constraint("Vertical", 2),
    Sketcher.Constraint("Horizontal", 3),
    Sketcher.Constraint("DistanceX", 1, 1, 1, 2, Q("30 mm")),
    Sketcher.Constraint("DistanceY", 0, 1, 0, 2, Q("12.5 mm")),
    Sketcher.Constraint("DistanceY", -1, 1, 2, 2, Q("4 mm")),
    Sketcher.Constraint("DistanceX", 0, 2, -1, 1, Q("15.030561 mm")),
])
pocket4 = body.newObject("PartDesign::Pocket", "Pocket003")
pocket4.Profile = sketch5
pocket4.Length = 21
pocket4.Reversed = True

doc.recompute()
